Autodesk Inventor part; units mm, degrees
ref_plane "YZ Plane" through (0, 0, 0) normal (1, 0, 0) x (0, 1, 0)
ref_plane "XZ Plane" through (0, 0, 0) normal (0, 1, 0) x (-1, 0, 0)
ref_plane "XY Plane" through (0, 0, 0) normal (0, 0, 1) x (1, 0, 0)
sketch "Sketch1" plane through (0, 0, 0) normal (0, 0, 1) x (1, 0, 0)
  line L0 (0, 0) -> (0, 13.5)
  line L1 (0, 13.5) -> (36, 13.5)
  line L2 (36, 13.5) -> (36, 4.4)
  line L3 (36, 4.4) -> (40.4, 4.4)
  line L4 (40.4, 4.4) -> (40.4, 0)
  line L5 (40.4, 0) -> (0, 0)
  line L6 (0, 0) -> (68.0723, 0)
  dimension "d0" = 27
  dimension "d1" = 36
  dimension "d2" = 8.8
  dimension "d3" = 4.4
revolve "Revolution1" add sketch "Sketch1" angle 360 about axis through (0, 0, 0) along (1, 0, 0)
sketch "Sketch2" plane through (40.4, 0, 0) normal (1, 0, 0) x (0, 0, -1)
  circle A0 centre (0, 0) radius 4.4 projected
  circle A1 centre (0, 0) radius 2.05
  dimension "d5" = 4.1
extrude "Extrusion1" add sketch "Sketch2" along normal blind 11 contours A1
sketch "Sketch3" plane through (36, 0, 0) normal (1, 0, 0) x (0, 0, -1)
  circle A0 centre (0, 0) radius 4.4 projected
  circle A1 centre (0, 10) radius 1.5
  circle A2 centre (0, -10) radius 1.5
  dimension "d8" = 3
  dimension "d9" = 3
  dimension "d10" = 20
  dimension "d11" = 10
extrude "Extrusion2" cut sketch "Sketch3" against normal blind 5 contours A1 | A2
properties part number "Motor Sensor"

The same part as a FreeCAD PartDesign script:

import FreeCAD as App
import Part
import Sketcher


def add_polygon(sketch, points):
    """Adds a closed chain of lines whose ends are joined by coincident constraints."""
    first, n = sketch.GeometryCount, len(points)
    for a, b in zip(points, points[1:] + points[:1]):
        sketch.addGeometry(Part.LineSegment(App.Vector(*a, 0), App.Vector(*b, 0)), False)
    for i in range(n):
        sketch.addConstraint(Sketcher.Constraint("Coincident", first + i, 2, first + (i + 1) % n, 1))

doc = App.newDocument("Part")
body = doc.addObject("PartDesign::Body", "Body")

# Sketch on XY plane
sketch1 = doc.addObject("Sketcher::SketchObject", "Sketch")
body.addObject(sketch1)
sketch1.AttachmentSupport = (doc.XY_Plane, [""])
sketch1.MapMode = "FlatFace"
add_polygon(sketch1, [(0, 13.5), (0, 0), (40.4, 0), (40.4, 4.4), (36, 4.4), (36, 13.5)])  # lines 0-5
sketch1.addConstraint([
    Sketcher.Constraint("Vertical", 0),
    Sketcher.Constraint("Horizontal", 1),
    Sketcher.Constraint("Vertical", 2),
    Sketcher.Constraint("Horizontal", 3),
    Sketcher.Constraint("Vertical", 4),
    Sketcher.Constraint("Horizontal", 5),
    Sketcher.Constraint("Coincident", 0, 2, -1, 1),
    Sketcher.Constraint("Equal", 3, 2),
    Sketcher.Constraint("DistanceX", 5, 2, 5, 1, 36.0),
    Sketcher.Constraint("DistanceX", 3, 2, 3, 1, 4.4),
    Sketcher.Constraint("DistanceY", 0, 2, 0, 1, 13.5),
])
revolution = doc.addObject("PartDesign::Revolution", "Revolution")
body.addObject(revolution)
revolution.Profile = sketch1
revolution.ReferenceAxis = (sketch1, ["H_Axis"])
revolution.Angle = 360

# Sketch on YZ plane
sketch2 = doc.addObject("Sketcher::SketchObject", "Sketch001")
body.addObject(sketch2)
sketch2.AttachmentSupport = (doc.YZ_Plane, [""])
sketch2.MapMode = "FlatFace"
sketch2.AttachmentOffset = App.Placement(App.Vector(0, 0, 40.4), App.Rotation())
sketch2.addGeometry(Part.Circle(App.Vector(0, 0, 0), App.Vector(0, 0, 1), 2), False)
sketch2.addConstraint([
    Sketcher.Constraint("Coincident", 0, 3, -1, 1),
    Sketcher.Constraint("Diameter", 0, 4.1),
])
pad1 = doc.addObject("PartDesign::Pad", "Pad")
body.addObject(pad1)
pad1.Profile = sketch2
pad1.Length = 11

# Sketch on YZ plane
sketch3 = doc.addObject("Sketcher::SketchObject", "Sketch002")
body.addObject(sketch3)
sketch3.AttachmentSupport = (doc.YZ_Plane, [""])
sketch3.MapMode = "FlatFace"
sketch3.AttachmentOffset = App.Placement(App.Vector(0, 0, 36), App.Rotation())
sketch3.addGeometry([
    Part.Circle(App.Vector(10, 0, 0), App.Vector(0, 0, 1), 1.5),
    Part.Circle(App.Vector(-10, 0, 0), App.Vector(0, 0, 1), 1.5),
], False)
sketch3.addConstraint([
    Sketcher.Constraint("Equal", 0, 1),
    Sketcher.Constraint("Symmetric", 0, 3, 1, 3, -1, 1),
    Sketcher.Constraint("PointOnObject", 0, 3, -1),
    Sketcher.Constraint("Diameter", 0, 3.0),
    Sketcher.Constraint("DistanceX", -1, 1, 0, 3, 10.0),
])
pocket1 = doc.addObject("PartDesign::Pocket", "Pocket")
body.addObject(pocket1)
pocket1.Profile = sketch3
pocket1.Length = 5

doc.recompute()
